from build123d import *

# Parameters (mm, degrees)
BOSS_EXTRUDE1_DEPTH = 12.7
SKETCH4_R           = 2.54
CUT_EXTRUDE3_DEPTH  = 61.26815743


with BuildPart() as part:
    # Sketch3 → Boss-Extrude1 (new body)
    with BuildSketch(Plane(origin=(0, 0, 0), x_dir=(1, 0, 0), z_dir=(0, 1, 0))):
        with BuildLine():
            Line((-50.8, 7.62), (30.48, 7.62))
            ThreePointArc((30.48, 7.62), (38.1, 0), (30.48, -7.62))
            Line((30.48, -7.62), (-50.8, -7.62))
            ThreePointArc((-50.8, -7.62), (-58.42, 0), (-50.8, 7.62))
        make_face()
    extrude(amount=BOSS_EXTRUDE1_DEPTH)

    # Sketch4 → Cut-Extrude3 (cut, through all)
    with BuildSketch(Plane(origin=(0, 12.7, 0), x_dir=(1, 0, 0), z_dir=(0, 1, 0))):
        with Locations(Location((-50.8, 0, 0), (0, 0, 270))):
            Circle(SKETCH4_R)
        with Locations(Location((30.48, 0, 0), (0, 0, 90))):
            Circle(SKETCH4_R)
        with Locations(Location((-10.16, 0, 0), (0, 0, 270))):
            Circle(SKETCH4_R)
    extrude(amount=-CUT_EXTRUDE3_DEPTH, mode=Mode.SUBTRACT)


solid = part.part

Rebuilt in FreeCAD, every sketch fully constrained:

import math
import FreeCAD as App
import Part
import Sketcher
Q = App.Units.Quantity

doc = App.newDocument("Part")
body = doc.addObject("PartDesign::Body", "Body")

sketch1 = doc.addObject("Sketcher::SketchObject", "Sketch")
body.addObject(sketch1)
sketch1.AttachmentSupport = (doc.XZ_Plane, [""])
sketch1.MapMode = "FlatFace"
sketch1.addGeometry(Part.LineSegment(App.Vector(30, -8, 0), App.Vector(-51, -8, 0)), False)
sketch1.addGeometry(Part.ArcOfCircle(Part.Circle(App.Vector(-51, 0, 0), App.Vector(0, 0, 1), 8), math.radians(90), math.radians(270)), False)
sketch1.addGeometry(Part.LineSegment(App.Vector(-51, 8, 0), App.Vector(30, 8, 0)), False)
sketch1.addGeometry(Part.ArcOfCircle(Part.Circle(App.Vector(30, 0, 0), App.Vector(0, 0, 1), 8), math.radians(-90), math.radians(90)), False)
sketch1.addConstraint(Sketcher.Constraint("Tangent", 0, 2, 1, 2))
sketch1.addConstraint(Sketcher.Constraint("Tangent", 1, 1, 2, 1))
sketch1.addConstraint(Sketcher.Constraint("Tangent", 2, 2, 3, 2))
sketch1.addConstraint(Sketcher.Constraint("Tangent", 3, 1, 0, 1))
sketch1.addConstraint(Sketcher.Constraint("Horizontal", 0))
sketch1.addConstraint(Sketcher.Constraint("Horizontal", 2))
sketch1.addConstraint(Sketcher.Constraint("PointOnObject", 1, 3, -1))
sketch1.addConstraint(Sketcher.Constraint("Radius", 1, Q("0.3 in")))
sketch1.addConstraint(Sketcher.Constraint("DistanceX", 0, 2, 0, 1, Q("3.2 in")))
sketch1.addConstraint(Sketcher.Constraint("DistanceX", 1, 3, -1, 1, Q("2 in")))
pad1 = doc.addObject("PartDesign::Pad", "Pad")
body.addObject(pad1)
pad1.Profile = sketch1
pad1.Length = Q("0.5 in")
pad1.Reversed = True

sketch2 = doc.addObject("Sketcher::SketchObject", "Sketch001")
body.addObject(sketch2)
sketch2.AttachmentSupport = (doc.XZ_Plane, [""])
sketch2.MapMode = "FlatFace"
sketch2.AttachmentOffset = App.Placement(App.Vector(0, 0, -0.5 * 25.4), App.Rotation())
sketch2.addGeometry(Part.Circle(App.Vector(-50.8, 0, 0), App.Vector(0, 0, 1), 2.5), False)
sketch2.addGeometry(Part.Circle(App.Vector(30.5, 0, 0), App.Vector(0, 0, 1), 2.5), False)
sketch2.addGeometry(Part.Circle(App.Vector(-10.2, 0, 0), App.Vector(0, 0, 1), 2.5), False)
sketch2.addConstraint(Sketcher.Constraint("Equal", 0, 1))
sketch2.addConstraint(Sketcher.Constraint("Equal", 1, 2))
sketch2.addConstraint(Sketcher.Constraint("PointOnObject", 0, 3, -1))
sketch2.addConstraint(Sketcher.Constraint("PointOnObject", 1, 3, -1))
sketch2.addConstraint(Sketcher.Constraint("PointOnObject", 2, 3, -1))
sketch2.addConstraint(Sketcher.Constraint("Diameter", 0, Q("0.2 in")))
sketch2.addConstraint(Sketcher.Constraint("DistanceX", 0, 3, -1, 1, Q("2 in")))
sketch2.addConstraint(Sketcher.Constraint("DistanceX", -1, 1, 1, 3, Q("1.2 in")))
sketch2.addConstraint(Sketcher.Constraint("DistanceX", 2, 3, -1, 1, Q("0.4 in")))
pocket1 = doc.addObject("PartDesign::Pocket", "Pocket")
body.addObject(pocket1)
pocket1.Profile = sketch2
pocket1.Type = "ThroughAll"
pocket1.Reversed = True

doc.recompute()
